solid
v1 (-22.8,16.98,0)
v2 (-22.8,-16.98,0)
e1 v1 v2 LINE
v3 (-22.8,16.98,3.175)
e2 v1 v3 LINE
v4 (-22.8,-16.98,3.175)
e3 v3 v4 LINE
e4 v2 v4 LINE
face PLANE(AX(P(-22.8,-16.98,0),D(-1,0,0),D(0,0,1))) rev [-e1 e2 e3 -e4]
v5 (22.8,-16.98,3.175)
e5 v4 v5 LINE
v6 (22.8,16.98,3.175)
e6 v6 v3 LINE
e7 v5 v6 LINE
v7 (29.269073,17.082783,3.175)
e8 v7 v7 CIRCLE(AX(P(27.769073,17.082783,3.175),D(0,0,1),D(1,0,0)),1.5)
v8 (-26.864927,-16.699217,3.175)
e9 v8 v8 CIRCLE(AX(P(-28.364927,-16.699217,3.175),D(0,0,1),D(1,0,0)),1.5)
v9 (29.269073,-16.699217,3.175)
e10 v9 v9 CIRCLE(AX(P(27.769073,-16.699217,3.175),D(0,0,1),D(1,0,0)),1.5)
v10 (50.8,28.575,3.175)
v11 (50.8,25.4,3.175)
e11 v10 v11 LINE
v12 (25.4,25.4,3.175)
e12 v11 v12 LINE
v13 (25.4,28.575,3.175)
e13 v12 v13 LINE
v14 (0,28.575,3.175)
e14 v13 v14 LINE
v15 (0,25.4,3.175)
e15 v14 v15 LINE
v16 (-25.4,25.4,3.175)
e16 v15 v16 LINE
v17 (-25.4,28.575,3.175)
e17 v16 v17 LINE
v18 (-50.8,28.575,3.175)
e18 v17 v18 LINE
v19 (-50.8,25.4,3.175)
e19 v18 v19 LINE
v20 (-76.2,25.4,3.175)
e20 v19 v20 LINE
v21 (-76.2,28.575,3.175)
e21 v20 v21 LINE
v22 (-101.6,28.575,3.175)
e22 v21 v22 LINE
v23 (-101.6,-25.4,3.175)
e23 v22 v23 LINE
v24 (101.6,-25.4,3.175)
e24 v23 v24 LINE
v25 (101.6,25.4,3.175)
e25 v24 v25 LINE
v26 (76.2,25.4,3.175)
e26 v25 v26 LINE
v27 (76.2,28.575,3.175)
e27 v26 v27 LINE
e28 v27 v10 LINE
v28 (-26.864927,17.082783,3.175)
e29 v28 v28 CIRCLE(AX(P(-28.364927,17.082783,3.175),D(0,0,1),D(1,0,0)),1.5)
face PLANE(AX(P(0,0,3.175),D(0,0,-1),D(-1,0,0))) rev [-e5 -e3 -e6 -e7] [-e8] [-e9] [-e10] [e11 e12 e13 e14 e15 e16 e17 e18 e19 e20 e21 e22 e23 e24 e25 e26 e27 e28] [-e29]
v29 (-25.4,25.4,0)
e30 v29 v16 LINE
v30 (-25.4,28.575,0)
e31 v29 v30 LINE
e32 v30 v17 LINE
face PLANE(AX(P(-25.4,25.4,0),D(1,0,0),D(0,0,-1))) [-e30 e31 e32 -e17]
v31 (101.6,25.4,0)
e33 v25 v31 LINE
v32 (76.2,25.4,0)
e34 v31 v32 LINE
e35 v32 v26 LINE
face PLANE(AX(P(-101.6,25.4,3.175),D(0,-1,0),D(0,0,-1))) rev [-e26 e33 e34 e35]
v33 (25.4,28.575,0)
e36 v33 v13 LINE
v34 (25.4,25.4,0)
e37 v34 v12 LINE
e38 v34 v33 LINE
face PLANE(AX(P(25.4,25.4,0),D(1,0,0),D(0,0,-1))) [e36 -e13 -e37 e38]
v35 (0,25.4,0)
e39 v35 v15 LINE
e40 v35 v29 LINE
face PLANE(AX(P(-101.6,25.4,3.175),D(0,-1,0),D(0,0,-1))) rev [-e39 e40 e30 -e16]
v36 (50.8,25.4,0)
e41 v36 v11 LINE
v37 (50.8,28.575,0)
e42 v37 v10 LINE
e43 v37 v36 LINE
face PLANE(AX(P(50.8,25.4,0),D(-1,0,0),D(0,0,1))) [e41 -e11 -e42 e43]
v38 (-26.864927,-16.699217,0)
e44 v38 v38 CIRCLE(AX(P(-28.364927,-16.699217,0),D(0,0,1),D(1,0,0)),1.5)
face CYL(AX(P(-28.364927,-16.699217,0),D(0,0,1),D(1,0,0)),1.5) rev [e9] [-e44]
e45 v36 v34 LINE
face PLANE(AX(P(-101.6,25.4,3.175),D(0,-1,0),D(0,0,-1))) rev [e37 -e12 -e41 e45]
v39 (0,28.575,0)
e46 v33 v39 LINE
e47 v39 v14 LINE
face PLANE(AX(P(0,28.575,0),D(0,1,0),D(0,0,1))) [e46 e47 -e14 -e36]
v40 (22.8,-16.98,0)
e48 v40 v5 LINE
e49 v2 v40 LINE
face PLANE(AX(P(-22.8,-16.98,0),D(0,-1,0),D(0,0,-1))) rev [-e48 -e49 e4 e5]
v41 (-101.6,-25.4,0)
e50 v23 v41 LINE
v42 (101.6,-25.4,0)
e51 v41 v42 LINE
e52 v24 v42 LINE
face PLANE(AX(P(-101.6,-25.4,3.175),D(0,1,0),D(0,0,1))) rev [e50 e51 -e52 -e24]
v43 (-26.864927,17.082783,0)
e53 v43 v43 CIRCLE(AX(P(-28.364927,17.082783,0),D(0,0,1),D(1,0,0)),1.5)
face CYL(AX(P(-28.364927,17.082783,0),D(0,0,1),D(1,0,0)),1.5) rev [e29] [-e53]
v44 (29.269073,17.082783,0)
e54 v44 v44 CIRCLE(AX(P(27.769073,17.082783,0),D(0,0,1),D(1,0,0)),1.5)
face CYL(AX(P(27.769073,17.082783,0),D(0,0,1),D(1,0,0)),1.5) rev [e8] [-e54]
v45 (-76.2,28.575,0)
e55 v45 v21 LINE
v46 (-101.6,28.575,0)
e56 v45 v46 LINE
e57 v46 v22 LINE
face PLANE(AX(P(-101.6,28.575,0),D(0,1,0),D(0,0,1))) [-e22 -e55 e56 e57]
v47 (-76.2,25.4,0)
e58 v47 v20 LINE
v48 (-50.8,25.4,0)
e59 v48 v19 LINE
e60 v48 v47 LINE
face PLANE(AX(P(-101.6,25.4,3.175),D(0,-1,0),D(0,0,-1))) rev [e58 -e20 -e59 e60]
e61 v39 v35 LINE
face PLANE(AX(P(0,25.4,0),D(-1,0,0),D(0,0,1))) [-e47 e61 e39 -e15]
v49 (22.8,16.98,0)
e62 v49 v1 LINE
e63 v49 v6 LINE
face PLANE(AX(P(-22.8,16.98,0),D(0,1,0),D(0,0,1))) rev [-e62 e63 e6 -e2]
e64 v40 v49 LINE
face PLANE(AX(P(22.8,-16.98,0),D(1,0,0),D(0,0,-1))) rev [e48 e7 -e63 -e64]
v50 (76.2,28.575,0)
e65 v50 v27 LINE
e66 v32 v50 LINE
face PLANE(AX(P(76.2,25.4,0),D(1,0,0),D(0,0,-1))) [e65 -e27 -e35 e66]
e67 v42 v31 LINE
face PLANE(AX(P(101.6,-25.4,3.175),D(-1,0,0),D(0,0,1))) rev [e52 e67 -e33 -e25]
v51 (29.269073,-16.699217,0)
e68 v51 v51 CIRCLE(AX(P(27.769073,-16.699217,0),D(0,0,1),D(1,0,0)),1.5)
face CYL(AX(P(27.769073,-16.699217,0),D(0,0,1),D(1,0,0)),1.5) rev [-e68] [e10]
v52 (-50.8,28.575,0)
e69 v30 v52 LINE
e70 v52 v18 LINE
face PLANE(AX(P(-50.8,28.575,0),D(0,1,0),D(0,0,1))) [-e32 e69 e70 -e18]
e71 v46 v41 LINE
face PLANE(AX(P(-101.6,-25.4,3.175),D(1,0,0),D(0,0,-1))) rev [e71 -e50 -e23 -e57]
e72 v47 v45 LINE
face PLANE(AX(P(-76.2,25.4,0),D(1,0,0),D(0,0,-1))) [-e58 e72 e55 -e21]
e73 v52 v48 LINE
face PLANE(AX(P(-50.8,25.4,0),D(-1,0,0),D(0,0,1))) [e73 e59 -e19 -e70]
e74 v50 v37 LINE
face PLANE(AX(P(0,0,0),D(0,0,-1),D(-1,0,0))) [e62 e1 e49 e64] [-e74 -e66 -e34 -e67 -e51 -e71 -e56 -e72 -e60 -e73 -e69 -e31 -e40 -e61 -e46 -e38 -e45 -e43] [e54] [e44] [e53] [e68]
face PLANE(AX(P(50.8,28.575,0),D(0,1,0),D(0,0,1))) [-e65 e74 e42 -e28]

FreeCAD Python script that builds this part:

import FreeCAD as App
import Part
import Sketcher
Q = App.Units.Quantity


def add_polygon(sketch, points):
    """Adds a closed chain of lines whose ends are joined by coincident constraints."""
    first, n = sketch.GeometryCount, len(points)
    for a, b in zip(points, points[1:] + points[:1]):
        sketch.addGeometry(Part.LineSegment(App.Vector(*a, 0), App.Vector(*b, 0)), False)
    for i in range(n):
        sketch.addConstraint(Sketcher.Constraint("Coincident", first + i, 2, first + (i + 1) % n, 1))

doc = App.newDocument("Part")
body = doc.addObject("PartDesign::Body", "Body")

sketch1 = body.newObject("Sketcher::SketchObject", "Sketch")
sketch1.AttachmentSupport = (doc.getObject("XY_Plane"), [""])
sketch1.MapMode = "FlatFace"
add_polygon(sketch1, [(-102, 25), (-102, -25), (102, -25), (102, 25)])
sketch1.addConstraint([
    Sketcher.Constraint("Vertical", 0),
    Sketcher.Constraint("Horizontal", 1),
    Sketcher.Constraint("Vertical", 2),
    Sketcher.Constraint("Horizontal", 3),
    Sketcher.Constraint("Symmetric", 0, 2, 2, 2, -1, 1),
    Sketcher.Constraint("DistanceX", 1, 1, 1, 2, Q("8 in")),
    Sketcher.Constraint("DistanceY", 0, 2, 0, 1, Q("2 in")),
])
pad1 = body.newObject("PartDesign::Pad", "Pad")
pad1.Profile = sketch1
pad1.Length = Q("0.125 in")

sketch2 = body.newObject("Sketcher::SketchObject", "Sketch001")
sketch2.AttachmentSupport = (doc.getObject("XY_Plane"), [""])
sketch2.MapMode = "FlatFace"
sketch2.AttachmentOffset = App.Placement(App.Vector(0, 0, 0.125 * 25.4), App.Rotation())
sketch2.addGeometry(Part.Circle(App.Vector(27.8, 17.1, 0), App.Vector(0, 0, 1), 1.5), False)
sketch2.addGeometry(Part.Circle(App.Vector(-28.4, 17.1, 0), App.Vector(0, 0, 1), 1.5), False)
sketch2.addGeometry(Part.Circle(App.Vector(-28.4, -16.7, 0), App.Vector(0, 0, 1), 1.5), False)
sketch2.addGeometry(Part.Circle(App.Vector(27.8, -16.7, 0), App.Vector(0, 0, 1), 1.5), False)
add_polygon(sketch2, [(-22.8, 17), (-22.8, -17), (22.8, -17), (22.8, 17)])
sketch2.addConstraint([
    Sketcher.Constraint("Vertical", 4),
    Sketcher.Constraint("Horizontal", 5),
    Sketcher.Constraint("Vertical", 6),
    Sketcher.Constraint("Horizontal", 7),
    Sketcher.Constraint("Equal", 0, 1),
    Sketcher.Constraint("Equal", 1, 2),
    Sketcher.Constraint("Equal", 2, 3),
    Sketcher.Constraint("Symmetric", 4, 2, 6, 2, -1, 1),
    Sketcher.Constraint("Horizontal", 0, 3, 1, 3),
    Sketcher.Constraint("Horizontal", 2, 3, 3, 3),
    Sketcher.Constraint("Vertical", 1, 3, 2, 3),
    Sketcher.Constraint("Vertical", 0, 3, 3, 3),
    Sketcher.Constraint("Diameter", 0, Q("3 mm")),
    Sketcher.Constraint("DistanceX", 1, 3, 0, 3, Q("2.21 in")),
    Sketcher.Constraint("DistanceY", 2, 3, 1, 3, Q("1.33 in")),
    Sketcher.Constraint("DistanceX", 5, 1, 5, 2, Q("45.6 mm")),
    Sketcher.Constraint("DistanceY", 4, 2, 4, 1, Q("33.96 mm")),
    Sketcher.Constraint("DistanceX", -1, 1, 0, 3, Q("27.769073 mm")),
    Sketcher.Constraint("DistanceY", -1, 1, 0, 3, Q("17.082783 mm")),
])
pocket1 = body.newObject("PartDesign::Pocket", "Pocket")
pocket1.Profile = sketch2
pocket1.Length = Q("0.125 in")

sketch3 = body.newObject("Sketcher::SketchObject", "Sketch002")
sketch3.AttachmentSupport = (doc.getObject("XY_Plane"), [""])
sketch3.MapMode = "FlatFace"
sketch3.AttachmentOffset = App.Placement(App.Vector(0, 0, 0.125 * 25.4), App.Rotation())
add_polygon(sketch3, [(-50.8, 28.6), (-50.8, 25.4), (-25.4, 25.4), (-25.4, 28.6)])
add_polygon(sketch3, [(-101.6, 28.6), (-101.6, 25.4), (-76.2, 25.4), (-76.2, 28.6)])
add_polygon(sketch3, [(0, 28.6), (0, 25.4), (25.4, 25.4), (25.4, 28.6)])
add_polygon(sketch3, [(50.8, 28.6), (50.8, 25.4), (76.2, 25.4), (76.2, 28.6)])
sketch3.addConstraint([
    Sketcher.Constraint("Vertical", 0),
    Sketcher.Constraint("Horizontal", 1),
    Sketcher.Constraint("Vertical", 2),
    Sketcher.Constraint("Horizontal", 3),
    Sketcher.Constraint("Vertical", 4),
    Sketcher.Constraint("Horizontal", 5),
    Sketcher.Constraint("Vertical", 6),
    Sketcher.Constraint("Horizontal", 7),
    Sketcher.Constraint("Vertical", 8),
    Sketcher.Constraint("Horizontal", 9),
    Sketcher.Constraint("Vertical", 10),
    Sketcher.Constraint("Horizontal", 11),
    Sketcher.Constraint("Vertical", 12),
    Sketcher.Constraint("Horizontal", 13),
    Sketcher.Constraint("Vertical", 14),
    Sketcher.Constraint("Horizontal", 15),
    Sketcher.Constraint("Symmetric", 1, 2, 9, 2, -2),
    Sketcher.Constraint("Symmetric", 0, 2, 12, 2, -2),
    Sketcher.Constraint("Symmetric", 5, 2, 13, 2, -2),
    Sketcher.Constraint("PointOnObject", 8, 2, -2),
    Sketcher.Constraint("Horizontal", 3, 2, 6, 2),
    Sketcher.Constraint("Horizontal", 7, 2, 10, 2),
    Sketcher.Constraint("Horizontal", 11, 2, 14, 2),
    Sketcher.Constraint("Equal", 3, 5),
    Sketcher.Constraint("Equal", 7, 9),
    Sketcher.Constraint("Equal", 11, 13),
    Sketcher.Constraint("DistanceX", 1, 1, 1, 2, Q("1 in")),
    Sketcher.Constraint("DistanceY", -1, 1, 0, 2, Q("1 in")),
    Sketcher.Constraint("DistanceY", 0, 2, 0, 1, Q("0.125 in")),
])
pad2 = body.newObject("PartDesign::Pad", "Pad001")
pad2.Profile = sketch3
pad2.Length = Q("0.125 in")
pad2.Reversed = True

doc.recompute()
